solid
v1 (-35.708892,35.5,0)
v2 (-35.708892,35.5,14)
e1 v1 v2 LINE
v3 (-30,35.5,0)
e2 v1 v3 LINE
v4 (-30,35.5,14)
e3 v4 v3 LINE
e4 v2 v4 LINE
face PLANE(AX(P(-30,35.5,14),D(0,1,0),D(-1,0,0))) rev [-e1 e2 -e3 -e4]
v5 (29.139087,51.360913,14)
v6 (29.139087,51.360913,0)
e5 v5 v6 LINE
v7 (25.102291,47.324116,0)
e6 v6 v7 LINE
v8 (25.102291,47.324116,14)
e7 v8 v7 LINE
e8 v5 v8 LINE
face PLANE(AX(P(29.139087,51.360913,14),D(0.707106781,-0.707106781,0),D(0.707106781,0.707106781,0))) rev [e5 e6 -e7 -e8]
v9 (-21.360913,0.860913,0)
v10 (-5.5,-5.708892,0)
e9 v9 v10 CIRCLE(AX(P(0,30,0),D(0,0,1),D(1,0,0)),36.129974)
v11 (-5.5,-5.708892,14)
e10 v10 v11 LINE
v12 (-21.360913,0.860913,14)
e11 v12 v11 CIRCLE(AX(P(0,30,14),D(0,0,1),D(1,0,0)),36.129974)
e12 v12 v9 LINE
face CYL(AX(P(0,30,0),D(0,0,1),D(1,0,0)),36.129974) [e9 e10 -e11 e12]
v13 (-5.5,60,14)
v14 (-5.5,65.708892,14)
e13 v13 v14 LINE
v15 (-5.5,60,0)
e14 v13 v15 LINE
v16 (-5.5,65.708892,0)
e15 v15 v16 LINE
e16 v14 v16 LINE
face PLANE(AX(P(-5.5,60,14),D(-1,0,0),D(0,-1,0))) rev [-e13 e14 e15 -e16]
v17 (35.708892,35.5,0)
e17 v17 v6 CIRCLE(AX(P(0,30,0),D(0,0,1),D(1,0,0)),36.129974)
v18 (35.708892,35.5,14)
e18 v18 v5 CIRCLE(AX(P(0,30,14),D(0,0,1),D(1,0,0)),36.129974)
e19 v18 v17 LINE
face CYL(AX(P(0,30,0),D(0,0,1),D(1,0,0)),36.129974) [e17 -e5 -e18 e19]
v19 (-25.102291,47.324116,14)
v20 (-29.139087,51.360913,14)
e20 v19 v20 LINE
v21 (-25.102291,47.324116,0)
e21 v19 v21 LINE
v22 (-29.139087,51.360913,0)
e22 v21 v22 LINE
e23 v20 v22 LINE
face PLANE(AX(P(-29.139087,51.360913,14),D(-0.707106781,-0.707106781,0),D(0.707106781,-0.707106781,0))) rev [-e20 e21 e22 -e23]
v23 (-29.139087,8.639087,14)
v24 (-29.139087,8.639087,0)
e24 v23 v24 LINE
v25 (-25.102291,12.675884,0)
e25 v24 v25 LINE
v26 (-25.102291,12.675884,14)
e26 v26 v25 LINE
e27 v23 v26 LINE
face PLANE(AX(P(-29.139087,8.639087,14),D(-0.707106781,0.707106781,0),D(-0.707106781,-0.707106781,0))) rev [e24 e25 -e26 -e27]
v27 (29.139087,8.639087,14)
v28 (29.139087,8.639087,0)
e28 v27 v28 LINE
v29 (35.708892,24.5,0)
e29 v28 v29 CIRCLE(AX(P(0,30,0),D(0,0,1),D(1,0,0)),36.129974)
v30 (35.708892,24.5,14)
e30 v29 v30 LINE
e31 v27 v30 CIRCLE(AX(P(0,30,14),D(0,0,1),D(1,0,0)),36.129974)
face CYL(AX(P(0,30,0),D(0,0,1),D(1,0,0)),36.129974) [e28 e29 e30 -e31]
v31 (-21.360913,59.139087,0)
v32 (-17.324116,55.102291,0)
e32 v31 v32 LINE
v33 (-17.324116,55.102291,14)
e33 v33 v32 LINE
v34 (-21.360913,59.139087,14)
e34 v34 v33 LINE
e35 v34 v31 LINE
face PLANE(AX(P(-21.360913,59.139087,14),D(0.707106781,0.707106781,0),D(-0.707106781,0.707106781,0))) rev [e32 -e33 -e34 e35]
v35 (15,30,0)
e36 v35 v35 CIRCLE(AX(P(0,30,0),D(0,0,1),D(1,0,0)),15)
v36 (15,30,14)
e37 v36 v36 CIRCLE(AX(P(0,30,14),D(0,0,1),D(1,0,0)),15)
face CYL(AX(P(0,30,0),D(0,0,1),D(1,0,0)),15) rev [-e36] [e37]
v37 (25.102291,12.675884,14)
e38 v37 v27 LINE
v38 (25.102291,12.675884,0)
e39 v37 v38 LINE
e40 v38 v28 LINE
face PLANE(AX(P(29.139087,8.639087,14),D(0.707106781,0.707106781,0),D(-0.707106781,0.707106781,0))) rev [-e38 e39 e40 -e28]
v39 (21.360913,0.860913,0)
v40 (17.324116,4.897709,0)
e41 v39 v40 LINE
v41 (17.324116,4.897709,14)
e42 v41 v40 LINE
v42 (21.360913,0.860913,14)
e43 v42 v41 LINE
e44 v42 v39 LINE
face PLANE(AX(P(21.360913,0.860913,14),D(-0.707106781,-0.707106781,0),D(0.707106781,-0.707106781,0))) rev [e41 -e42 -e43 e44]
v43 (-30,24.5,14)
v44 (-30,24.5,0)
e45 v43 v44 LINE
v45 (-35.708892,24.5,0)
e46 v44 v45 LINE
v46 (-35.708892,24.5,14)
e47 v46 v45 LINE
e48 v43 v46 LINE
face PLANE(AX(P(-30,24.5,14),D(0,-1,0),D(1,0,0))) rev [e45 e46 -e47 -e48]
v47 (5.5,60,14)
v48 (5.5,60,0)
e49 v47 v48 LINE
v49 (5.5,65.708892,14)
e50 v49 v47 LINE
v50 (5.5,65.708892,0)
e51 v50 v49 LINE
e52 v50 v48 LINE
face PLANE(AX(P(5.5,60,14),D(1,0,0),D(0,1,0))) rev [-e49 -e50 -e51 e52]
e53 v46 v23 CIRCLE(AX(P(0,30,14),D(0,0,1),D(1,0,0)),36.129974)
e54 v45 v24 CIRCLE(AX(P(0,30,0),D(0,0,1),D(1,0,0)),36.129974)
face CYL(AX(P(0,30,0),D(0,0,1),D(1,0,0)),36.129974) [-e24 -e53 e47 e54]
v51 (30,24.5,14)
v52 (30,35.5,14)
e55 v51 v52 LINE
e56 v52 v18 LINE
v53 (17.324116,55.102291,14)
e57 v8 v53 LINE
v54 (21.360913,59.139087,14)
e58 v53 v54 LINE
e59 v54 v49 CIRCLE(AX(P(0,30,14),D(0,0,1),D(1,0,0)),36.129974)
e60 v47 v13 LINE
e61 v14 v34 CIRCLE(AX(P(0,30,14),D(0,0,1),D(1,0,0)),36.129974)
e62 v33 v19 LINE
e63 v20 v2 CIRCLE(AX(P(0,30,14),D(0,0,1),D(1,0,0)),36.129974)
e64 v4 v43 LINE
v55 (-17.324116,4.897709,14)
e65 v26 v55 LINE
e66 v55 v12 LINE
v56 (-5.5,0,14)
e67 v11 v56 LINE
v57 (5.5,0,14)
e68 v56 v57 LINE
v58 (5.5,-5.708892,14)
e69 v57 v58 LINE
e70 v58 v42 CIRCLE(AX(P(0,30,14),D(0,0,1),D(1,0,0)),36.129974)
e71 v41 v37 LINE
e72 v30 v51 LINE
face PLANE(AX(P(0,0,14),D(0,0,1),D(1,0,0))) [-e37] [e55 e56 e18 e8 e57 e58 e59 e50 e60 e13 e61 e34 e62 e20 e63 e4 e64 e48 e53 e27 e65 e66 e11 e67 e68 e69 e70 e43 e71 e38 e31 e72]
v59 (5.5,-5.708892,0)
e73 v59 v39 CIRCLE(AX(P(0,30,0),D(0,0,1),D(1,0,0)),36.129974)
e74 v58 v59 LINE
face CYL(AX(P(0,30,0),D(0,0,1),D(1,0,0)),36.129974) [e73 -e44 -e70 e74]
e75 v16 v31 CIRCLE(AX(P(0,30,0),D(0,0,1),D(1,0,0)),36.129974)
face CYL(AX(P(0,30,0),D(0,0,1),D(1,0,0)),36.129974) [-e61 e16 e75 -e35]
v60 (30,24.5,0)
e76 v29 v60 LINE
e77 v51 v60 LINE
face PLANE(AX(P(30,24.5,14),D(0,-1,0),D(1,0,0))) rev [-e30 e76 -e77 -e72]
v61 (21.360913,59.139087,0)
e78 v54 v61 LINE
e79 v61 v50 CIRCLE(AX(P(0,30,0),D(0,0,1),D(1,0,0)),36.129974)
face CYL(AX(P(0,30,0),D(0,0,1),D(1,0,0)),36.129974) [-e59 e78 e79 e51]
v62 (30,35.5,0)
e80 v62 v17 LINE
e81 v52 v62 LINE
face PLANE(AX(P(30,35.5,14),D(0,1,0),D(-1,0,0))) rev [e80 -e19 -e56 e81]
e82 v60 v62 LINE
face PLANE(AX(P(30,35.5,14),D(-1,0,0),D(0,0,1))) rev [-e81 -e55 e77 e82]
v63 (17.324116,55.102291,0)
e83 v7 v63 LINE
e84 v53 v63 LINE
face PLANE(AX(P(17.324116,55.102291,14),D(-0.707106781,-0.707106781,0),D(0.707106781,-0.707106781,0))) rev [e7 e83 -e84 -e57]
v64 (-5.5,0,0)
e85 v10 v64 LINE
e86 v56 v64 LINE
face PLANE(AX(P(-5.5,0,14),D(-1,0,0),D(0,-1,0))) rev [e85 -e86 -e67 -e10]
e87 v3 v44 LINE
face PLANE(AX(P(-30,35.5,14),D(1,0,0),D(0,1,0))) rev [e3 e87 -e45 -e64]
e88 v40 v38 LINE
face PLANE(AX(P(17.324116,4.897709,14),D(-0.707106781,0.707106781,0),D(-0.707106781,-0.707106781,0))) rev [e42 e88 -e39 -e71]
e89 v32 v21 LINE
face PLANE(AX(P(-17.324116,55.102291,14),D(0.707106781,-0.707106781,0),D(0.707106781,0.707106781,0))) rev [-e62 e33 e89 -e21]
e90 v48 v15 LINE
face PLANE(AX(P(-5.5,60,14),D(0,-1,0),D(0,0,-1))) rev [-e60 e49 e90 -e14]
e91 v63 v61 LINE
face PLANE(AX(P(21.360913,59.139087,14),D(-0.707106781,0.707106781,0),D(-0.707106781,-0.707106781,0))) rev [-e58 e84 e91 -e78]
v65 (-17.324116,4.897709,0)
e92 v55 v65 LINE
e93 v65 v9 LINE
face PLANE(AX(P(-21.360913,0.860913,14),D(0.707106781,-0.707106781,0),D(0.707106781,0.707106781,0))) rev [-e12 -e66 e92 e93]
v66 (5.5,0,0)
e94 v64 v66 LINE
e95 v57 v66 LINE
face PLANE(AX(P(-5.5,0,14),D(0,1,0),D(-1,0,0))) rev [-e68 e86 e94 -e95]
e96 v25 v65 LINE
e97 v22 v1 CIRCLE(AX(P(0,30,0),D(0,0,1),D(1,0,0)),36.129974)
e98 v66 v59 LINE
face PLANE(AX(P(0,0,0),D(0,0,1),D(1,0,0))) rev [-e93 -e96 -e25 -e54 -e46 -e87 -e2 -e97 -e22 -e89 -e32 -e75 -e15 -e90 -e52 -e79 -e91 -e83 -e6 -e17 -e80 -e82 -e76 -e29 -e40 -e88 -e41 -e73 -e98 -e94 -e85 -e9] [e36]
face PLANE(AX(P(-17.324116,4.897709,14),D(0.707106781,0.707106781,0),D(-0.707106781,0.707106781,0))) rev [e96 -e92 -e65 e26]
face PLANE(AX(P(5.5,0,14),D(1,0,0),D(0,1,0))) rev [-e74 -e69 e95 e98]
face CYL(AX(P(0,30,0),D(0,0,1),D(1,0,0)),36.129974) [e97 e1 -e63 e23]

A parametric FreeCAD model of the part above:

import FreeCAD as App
import Part
import Sketcher
from FreeCAD import Vector

doc = App.newDocument("Part")
params = doc.addObject("Spreadsheet::Sheet", "Params")
for row, (alias, value) in enumerate([
    ("sketch1_width", "11 mm"),
    ("sketch1_width2", "15 mm"),
    ("sketch1_length", "11 mm"),
    ("pad1_length", "14 mm"),
    ("sketch2_diameter", "30 mm"),
], start=1):
    params.set(f"A{row}", alias)
    params.set(f"B{row}", "=" + value)
    params.setAlias(f"B{row}", alias)

body = doc.addObject("PartDesign::Body", "Body")

sketch1 = body.newObject("Sketcher::SketchObject", "Sketch")
sketch1.AttachmentSupport = (doc.getObject("XY_Plane"), [""])
sketch1.MapMode = "FlatFace"
sketch1.addGeometry(Part.LineSegment(Vector(-5.5, 0, 0), Vector(5.5, 0, 0)), False)
sketch1.addGeometry(Part.LineSegment(Vector(5.5, 0, 0), Vector(5.5, -15, 0)), False)
sketch1.addGeometry(Part.LineSegment(Vector(5.5, -15, 0), Vector(21.360913, 0.860913, 0)), False)
sketch1.addGeometry(Part.LineSegment(Vector(21.360913, 0.860913, 0), Vector(17.324116, 4.897709, 0)), False)
sketch1.addGeometry(Part.LineSegment(Vector(17.324116, 4.897709, 0), Vector(25.102291, 12.675884, 0)), False)
sketch1.addGeometry(Part.LineSegment(Vector(25.102291, 12.675884, 0), Vector(29.139087, 8.639087, 0)), False)
sketch1.addGeometry(Part.LineSegment(Vector(29.139087, 8.639087, 0), Vector(45, 24.5, 0)), False)
sketch1.addGeometry(Part.LineSegment(Vector(45, 24.5, 0), Vector(30, 24.5, 0)), False)
sketch1.addGeometry(Part.LineSegment(Vector(30, 24.5, 0), Vector(30, 35.5, 0)), False)
sketch1.addGeometry(Part.LineSegment(Vector(30, 35.5, 0), Vector(45, 35.5, 0)), False)
sketch1.addGeometry(Part.LineSegment(Vector(45, 35.5, 0), Vector(29.139087, 51.360913, 0)), False)
sketch1.addGeometry(Part.LineSegment(Vector(29.139087, 51.360913, 0), Vector(25.102291, 47.324116, 0)), False)
sketch1.addGeometry(Part.LineSegment(Vector(25.102291, 47.324116, 0), Vector(17.324116, 55.102291, 0)), False)
sketch1.addGeometry(Part.LineSegment(Vector(17.324116, 55.102291, 0), Vector(21.360913, 59.139087, 0)), False)
sketch1.addGeometry(Part.LineSegment(Vector(21.360913, 59.139087, 0), Vector(5.5, 75, 0)), False)
sketch1.addGeometry(Part.LineSegment(Vector(5.5, 75, 0), Vector(5.5, 60, 0)), False)
sketch1.addGeometry(Part.LineSegment(Vector(5.5, 60, 0), Vector(-5.5, 60, 0)), False)
sketch1.addGeometry(Part.LineSegment(Vector(-5.5, 60, 0), Vector(-5.5, 75, 0)), False)
sketch1.addGeometry(Part.LineSegment(Vector(-5.5, 75, 0), Vector(-21.360913, 59.139087, 0)), False)
sketch1.addGeometry(Part.LineSegment(Vector(-21.360913, 59.139087, 0), Vector(-17.324116, 55.102291, 0)), False)
sketch1.addGeometry(Part.LineSegment(Vector(-17.324116, 55.102291, 0), Vector(-25.102291, 47.324116, 0)), False)
sketch1.addGeometry(Part.LineSegment(Vector(-25.102291, 47.324116, 0), Vector(-29.139087, 51.360913, 0)), False)
sketch1.addGeometry(Part.LineSegment(Vector(-29.139087, 51.360913, 0), Vector(-45, 35.5, 0)), False)
sketch1.addGeometry(Part.LineSegment(Vector(-45, 35.5, 0), Vector(-30, 35.5, 0)), False)
sketch1.addGeometry(Part.LineSegment(Vector(-30, 35.5, 0), Vector(-30, 24.5, 0)), False)
sketch1.addGeometry(Part.LineSegment(Vector(-30, 24.5, 0), Vector(-45, 24.5, 0)), False)
sketch1.addGeometry(Part.LineSegment(Vector(-45, 24.5, 0), Vector(-29.139087, 8.639087, 0)), False)
sketch1.addGeometry(Part.LineSegment(Vector(-29.139087, 8.639087, 0), Vector(-25.102291, 12.675884, 0)), False)
sketch1.addGeometry(Part.LineSegment(Vector(-25.102291, 12.675884, 0), Vector(-17.324116, 4.897709, 0)), False)
sketch1.addGeometry(Part.LineSegment(Vector(-17.324116, 4.897709, 0), Vector(-21.360913, 0.860913, 0)), False)
sketch1.addGeometry(Part.LineSegment(Vector(-21.360913, 0.860913, 0), Vector(-5.5, -15, 0)), False)
sketch1.addGeometry(Part.LineSegment(Vector(-5.5, -15, 0), Vector(-5.5, 0, 0)), False)
sketch1.addConstraint(Sketcher.Constraint("Coincident", 0, 2, 1, 1))
sketch1.addConstraint(Sketcher.Constraint("Coincident", 1, 2, 2, 1))
sketch1.addConstraint(Sketcher.Constraint("Coincident", 2, 2, 3, 1))
sketch1.addConstraint(Sketcher.Constraint("Coincident", 3, 2, 4, 1))
sketch1.addConstraint(Sketcher.Constraint("Coincident", 4, 2, 5, 1))
sketch1.addConstraint(Sketcher.Constraint("Coincident", 5, 2, 6, 1))
sketch1.addConstraint(Sketcher.Constraint("Coincident", 6, 2, 7, 1))
sketch1.addConstraint(Sketcher.Constraint("Coincident", 7, 2, 8, 1))
sketch1.addConstraint(Sketcher.Constraint("Coincident", 8, 2, 9, 1))
sketch1.addConstraint(Sketcher.Constraint("Coincident", 9, 2, 10, 1))
sketch1.addConstraint(Sketcher.Constraint("Coincident", 10, 2, 11, 1))
sketch1.addConstraint(Sketcher.Constraint("Coincident", 11, 2, 12, 1))
sketch1.addConstraint(Sketcher.Constraint("Coincident", 12, 2, 13, 1))
sketch1.addConstraint(Sketcher.Constraint("Coincident", 13, 2, 14, 1))
sketch1.addConstraint(Sketcher.Constraint("Coincident", 14, 2, 15, 1))
sketch1.addConstraint(Sketcher.Constraint("Coincident", 15, 2, 16, 1))
sketch1.addConstraint(Sketcher.Constraint("Coincident", 16, 2, 17, 1))
sketch1.addConstraint(Sketcher.Constraint("Coincident", 17, 2, 18, 1))
sketch1.addConstraint(Sketcher.Constraint("Coincident", 18, 2, 19, 1))
sketch1.addConstraint(Sketcher.Constraint("Coincident", 19, 2, 20, 1))
sketch1.addConstraint(Sketcher.Constraint("Coincident", 20, 2, 21, 1))
sketch1.addConstraint(Sketcher.Constraint("Coincident", 21, 2, 22, 1))
sketch1.addConstraint(Sketcher.Constraint("Coincident", 22, 2, 23, 1))
sketch1.addConstraint(Sketcher.Constraint("Coincident", 23, 2, 24, 1))
sketch1.addConstraint(Sketcher.Constraint("Coincident", 24, 2, 25, 1))
sketch1.addConstraint(Sketcher.Constraint("Coincident", 25, 2, 26, 1))
sketch1.addConstraint(Sketcher.Constraint("Coincident", 26, 2, 27, 1))
sketch1.addConstraint(Sketcher.Constraint("Coincident", 27, 2, 28, 1))
sketch1.addConstraint(Sketcher.Constraint("Coincident", 28, 2, 29, 1))
sketch1.addConstraint(Sketcher.Constraint("Coincident", 29, 2, 30, 1))
sketch1.addConstraint(Sketcher.Constraint("Coincident", 30, 2, 31, 1))
sketch1.addConstraint(Sketcher.Constraint("Coincident", 31, 2, 0, 1))
sketch1.addConstraint(Sketcher.Constraint("Horizontal", 0))
sketch1.addConstraint(Sketcher.Constraint("Vertical", 1))
sketch1.addConstraint(Sketcher.Constraint("Horizontal", 7))
sketch1.addConstraint(Sketcher.Constraint("Vertical", 8))
sketch1.addConstraint(Sketcher.Constraint("Horizontal", 9))
sketch1.addConstraint(Sketcher.Constraint("Vertical", 15))
sketch1.addConstraint(Sketcher.Constraint("Horizontal", 16))
sketch1.addConstraint(Sketcher.Constraint("Vertical", 17))
sketch1.addConstraint(Sketcher.Constraint("Horizontal", 23))
sketch1.addConstraint(Sketcher.Constraint("Vertical", 24))
sketch1.addConstraint(Sketcher.Constraint("Horizontal", 25))
sketch1.addConstraint(Sketcher.Constraint("Vertical", 31))
sketch1.addConstraint(Sketcher.Constraint("Symmetric", 0, 2, 31, 2, -1, 1))
sketch1.addConstraint(Sketcher.Constraint("Symmetric", 14, 2, 17, 2, -2))
sketch1.addConstraint(Sketcher.Constraint("Symmetric", 13, 2, 18, 2, -2))
sketch1.addConstraint(Sketcher.Constraint("Symmetric", 12, 2, 19, 2, -2))
sketch1.addConstraint(Sketcher.Constraint("Symmetric", 11, 2, 20, 2, -2))
sketch1.addConstraint(Sketcher.Constraint("Symmetric", 10, 2, 21, 2, -2))
sketch1.addConstraint(Sketcher.Constraint("Symmetric", 9, 2, 22, 2, -2))
sketch1.addConstraint(Sketcher.Constraint("Symmetric", 7, 2, 24, 2, -2))
sketch1.addConstraint(Sketcher.Constraint("Symmetric", 5, 2, 26, 2, -2))
sketch1.addConstraint(Sketcher.Constraint("Symmetric", 4, 2, 27, 2, -2))
sketch1.addConstraint(Sketcher.Constraint("Symmetric", 3, 2, 28, 2, -2))
sketch1.addConstraint(Sketcher.Constraint("Symmetric", 2, 2, 29, 2, -2))
sketch1.addConstraint(Sketcher.Constraint("Perpendicular", 2, 3))
sketch1.addConstraint(Sketcher.Constraint("Perpendicular", 3, 4))
sketch1.addConstraint(Sketcher.Constraint("Perpendicular", 4, 5))
sketch1.addConstraint(Sketcher.Constraint("Perpendicular", 5, 6))
sketch1.addConstraint(Sketcher.Constraint("Perpendicular", 6, 10))
sketch1.addConstraint(Sketcher.Constraint("Perpendicular", 10, 11))
sketch1.addConstraint(Sketcher.Constraint("Perpendicular", 11, 12))
sketch1.addConstraint(Sketcher.Constraint("Perpendicular", 12, 13))
sketch1.addConstraint(Sketcher.Constraint("Perpendicular", 13, 14))
sketch1.addConstraint(Sketcher.Constraint("Perpendicular", 14, 18))
sketch1.addConstraint(Sketcher.Constraint("Perpendicular", 22, 26))
sketch1.addConstraint(Sketcher.Constraint("Perpendicular", 29, 30))
sketch1.addConstraint(Sketcher.Constraint("Vertical", 6, 2, 9, 2))
sketch1.addConstraint(Sketcher.Constraint("Vertical", 5, 2, 10, 2))
sketch1.addConstraint(Sketcher.Constraint("Vertical", 4, 2, 11, 2))
sketch1.addConstraint(Sketcher.Constraint("Vertical", 3, 2, 12, 2))
sketch1.addConstraint(Sketcher.Constraint("Vertical", 2, 2, 13, 2))
sketch1.addConstraint(Sketcher.Constraint("Vertical", 1, 2, 14, 2))
sketch1.addConstraint(Sketcher.Constraint("Equal", 25, 1))
sketch1.addConstraint(Sketcher.Constraint("Equal", 16, 8))
sketch1.addConstraint(Sketcher.Constraint("Equal", 1, 15))
sketch1.addConstraint(Sketcher.Constraint("Equal", 3, 5))
sketch1.addConstraint(Sketcher.Constraint("Equal", 2, 6))
sketch1.addConstraint(Sketcher.Constraint("DistanceX", 0, 1, 0, 2, 11.0))
sketch1.addConstraint(Sketcher.Constraint("DistanceX", 7, 2, 7, 1, 15.0))
sketch1.addConstraint(Sketcher.Constraint("Distance", 4, 11.0))
sketch1.addConstraint(Sketcher.Constraint("DistanceX", -1, 1, 6, 2, 45.0))
sketch1.addConstraint(Sketcher.Constraint("DistanceY", -1, 1, 3, 2, 4.897709))
sketch1.setExpression("Constraints[79]", "Params.sketch1_width")
sketch1.setExpression("Constraints[80]", "Params.sketch1_width2")
sketch1.setExpression("Constraints[81]", "Params.sketch1_length")
pad1 = body.newObject("PartDesign::Pad", "Pad")
pad1.Profile = sketch1
pad1.setExpression("Length", "Params.pad1_length")

sketch2 = body.newObject("Sketcher::SketchObject", "Sketch001")
sketch2.AttachmentSupport = (doc.getObject("XY_Plane"), [""])
sketch2.MapMode = "FlatFace"
sketch2.AttachmentOffset = App.Placement(Vector(0, 0, 14), App.Rotation())
sketch2.addGeometry(Part.Circle(Vector(0, 30, 0), Vector(0, 0, 1), 15), False)
sketch2.addConstraint(Sketcher.Constraint("PointOnObject", 0, 3, -2))
sketch2.addConstraint(Sketcher.Constraint("Diameter", 0, 30.0))
sketch2.addConstraint(Sketcher.Constraint("DistanceY", -1, 1, 0, 3, 30.0))
sketch2.setExpression("Constraints[1]", "Params.sketch2_diameter")
pocket1 = body.newObject("PartDesign::Pocket", "Pocket")
pocket1.Profile = sketch2
pocket1.Type = "ThroughAll"
pocket1.Midplane = True

sketch3 = body.newObject("Sketcher::SketchObject", "Sketch002")
sketch3.AttachmentSupport = (doc.getObject("XY_Plane"), [""])
sketch3.MapMode = "FlatFace"
sketch3.AttachmentOffset = App.Placement(Vector(0, 0, 14), App.Rotation())
sketch3.addGeometry(Part.Circle(Vector(0, 30, 0), Vector(0, 0, 1), 45.334865), False)
sketch3.addGeometry(Part.Circle(Vector(0, 30, 0), Vector(0, 0, 1), 36.129974), False)
sketch3.addConstraint(Sketcher.Constraint("Coincident", 1, 3, 0, 3))
sketch3.addConstraint(Sketcher.Constraint("PointOnObject", 0, 3, -2))
sketch3.addConstraint(Sketcher.Constraint("DistanceY", -1, 1, 0, 3, 30.0))
sketch3.addConstraint(Sketcher.Constraint("Diameter", 0, 90.66973))
sketch3.addConstraint(Sketcher.Constraint("Diameter", 1, 72.259947))
pocket2 = body.newObject("PartDesign::Pocket", "Pocket001")
pocket2.Profile = sketch3
pocket2.Type = "ThroughAll"

doc.recompute()
